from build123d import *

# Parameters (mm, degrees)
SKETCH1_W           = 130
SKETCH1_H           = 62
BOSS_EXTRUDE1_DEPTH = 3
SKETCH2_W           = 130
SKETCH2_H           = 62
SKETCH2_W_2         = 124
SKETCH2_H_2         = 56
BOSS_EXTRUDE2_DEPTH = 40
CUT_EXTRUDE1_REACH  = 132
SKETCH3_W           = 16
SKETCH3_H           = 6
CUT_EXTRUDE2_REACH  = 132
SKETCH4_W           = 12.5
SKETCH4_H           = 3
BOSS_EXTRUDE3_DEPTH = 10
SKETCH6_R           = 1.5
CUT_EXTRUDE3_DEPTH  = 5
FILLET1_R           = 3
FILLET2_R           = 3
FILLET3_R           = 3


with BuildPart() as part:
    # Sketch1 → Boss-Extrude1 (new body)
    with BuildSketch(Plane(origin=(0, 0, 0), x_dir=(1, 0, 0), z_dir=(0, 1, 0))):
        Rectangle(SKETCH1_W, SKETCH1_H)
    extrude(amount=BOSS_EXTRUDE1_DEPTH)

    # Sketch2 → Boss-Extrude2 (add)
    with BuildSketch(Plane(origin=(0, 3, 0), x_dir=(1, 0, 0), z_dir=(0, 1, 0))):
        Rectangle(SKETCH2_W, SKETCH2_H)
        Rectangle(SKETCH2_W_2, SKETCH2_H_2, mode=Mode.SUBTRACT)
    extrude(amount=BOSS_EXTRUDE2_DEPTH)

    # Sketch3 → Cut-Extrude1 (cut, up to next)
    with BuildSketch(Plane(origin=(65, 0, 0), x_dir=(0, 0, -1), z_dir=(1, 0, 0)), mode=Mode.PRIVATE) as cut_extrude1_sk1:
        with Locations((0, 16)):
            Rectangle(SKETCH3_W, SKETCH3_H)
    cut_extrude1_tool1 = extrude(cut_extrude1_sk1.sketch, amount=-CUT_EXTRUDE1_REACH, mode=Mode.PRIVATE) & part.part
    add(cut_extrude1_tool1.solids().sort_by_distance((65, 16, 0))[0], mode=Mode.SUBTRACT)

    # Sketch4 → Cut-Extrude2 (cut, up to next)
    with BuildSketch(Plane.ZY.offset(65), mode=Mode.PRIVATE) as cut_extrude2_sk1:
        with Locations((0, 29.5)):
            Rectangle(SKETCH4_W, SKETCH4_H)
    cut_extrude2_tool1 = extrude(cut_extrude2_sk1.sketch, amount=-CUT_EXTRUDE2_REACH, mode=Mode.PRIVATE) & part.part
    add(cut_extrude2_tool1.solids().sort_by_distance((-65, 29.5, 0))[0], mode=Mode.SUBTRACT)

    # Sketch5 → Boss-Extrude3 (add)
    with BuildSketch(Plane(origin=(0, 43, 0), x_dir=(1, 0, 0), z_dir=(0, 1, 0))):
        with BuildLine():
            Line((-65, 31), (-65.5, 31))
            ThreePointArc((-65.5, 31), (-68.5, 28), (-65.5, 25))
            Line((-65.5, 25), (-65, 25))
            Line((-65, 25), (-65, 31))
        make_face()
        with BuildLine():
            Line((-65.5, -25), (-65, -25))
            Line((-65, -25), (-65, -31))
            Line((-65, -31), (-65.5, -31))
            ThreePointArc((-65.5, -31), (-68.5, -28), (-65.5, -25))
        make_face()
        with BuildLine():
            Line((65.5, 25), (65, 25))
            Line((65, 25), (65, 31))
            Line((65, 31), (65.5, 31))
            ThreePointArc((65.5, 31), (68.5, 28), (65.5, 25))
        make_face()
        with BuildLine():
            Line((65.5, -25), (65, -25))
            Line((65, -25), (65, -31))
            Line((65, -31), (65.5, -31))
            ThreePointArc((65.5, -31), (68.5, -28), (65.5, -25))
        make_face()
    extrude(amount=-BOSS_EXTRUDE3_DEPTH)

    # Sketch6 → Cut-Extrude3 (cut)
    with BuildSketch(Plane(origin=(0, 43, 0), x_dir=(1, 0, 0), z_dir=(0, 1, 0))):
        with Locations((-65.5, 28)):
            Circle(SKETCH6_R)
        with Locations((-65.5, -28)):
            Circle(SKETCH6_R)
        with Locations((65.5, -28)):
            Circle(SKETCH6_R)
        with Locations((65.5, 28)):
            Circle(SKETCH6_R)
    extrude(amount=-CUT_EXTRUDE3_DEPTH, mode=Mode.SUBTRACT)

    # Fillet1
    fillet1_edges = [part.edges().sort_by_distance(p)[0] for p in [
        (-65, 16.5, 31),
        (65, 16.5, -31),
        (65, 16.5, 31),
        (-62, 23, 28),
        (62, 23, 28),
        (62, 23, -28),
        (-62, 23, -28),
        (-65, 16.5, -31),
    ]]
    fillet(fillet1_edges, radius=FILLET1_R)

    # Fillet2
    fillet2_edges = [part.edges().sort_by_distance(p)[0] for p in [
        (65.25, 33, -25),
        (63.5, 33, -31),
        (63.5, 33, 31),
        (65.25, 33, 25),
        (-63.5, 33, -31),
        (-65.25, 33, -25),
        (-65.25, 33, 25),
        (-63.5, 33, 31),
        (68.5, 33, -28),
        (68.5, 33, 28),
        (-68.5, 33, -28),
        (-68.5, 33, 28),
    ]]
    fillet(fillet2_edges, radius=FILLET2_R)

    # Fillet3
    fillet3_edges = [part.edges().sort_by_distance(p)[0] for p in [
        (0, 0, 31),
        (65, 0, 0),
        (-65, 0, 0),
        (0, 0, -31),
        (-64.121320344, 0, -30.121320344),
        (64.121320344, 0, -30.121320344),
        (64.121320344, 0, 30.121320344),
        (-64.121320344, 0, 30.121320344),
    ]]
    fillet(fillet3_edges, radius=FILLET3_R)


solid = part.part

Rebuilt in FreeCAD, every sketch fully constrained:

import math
import FreeCAD as App
import Part
import Sketcher


def edges_at(feature, points):
    """Names of the edges that pass closest to the given points."""
    edges = feature.Shape.Edges
    near = lambda p: min(range(len(edges)), key=lambda i: edges[i].distToShape(Part.Vertex(*p))[0])
    return sorted({f"Edge{near(p) + 1}" for p in points})


def add_polygon(sketch, points):
    """Adds a closed chain of lines whose ends are joined by coincident constraints."""
    first, n = sketch.GeometryCount, len(points)
    for a, b in zip(points, points[1:] + points[:1]):
        sketch.addGeometry(Part.LineSegment(App.Vector(*a, 0), App.Vector(*b, 0)), False)
    for i in range(n):
        sketch.addConstraint(Sketcher.Constraint("Coincident", first + i, 2, first + (i + 1) % n, 1))

doc = App.newDocument("Part")
params = doc.addObject("Spreadsheet::Sheet", "Params")
for row, (alias, value) in enumerate([
    ("sketch1_width", "130 mm"),
    ("sketch1_height", "62 mm"),
    ("pad1_length", "3 mm"),
    ("sketch2_width", "130 mm"),
    ("sketch2_width2", "124 mm"),
    ("sketch2_height", "62 mm"),
    ("sketch2_height2", "56 mm"),
    ("pad2_length", "40 mm"),
    ("sketch3_width", "6 mm"),
    ("sketch3_height", "16 mm"),
    ("sketch4_width", "3 mm"),
    ("sketch4_height", "12.5 mm"),
    ("sketch5_radius", "3 mm"),
    ("sketch5_width", "0.5 mm"),
    ("pad3_length", "10 mm"),
    ("sketch6_diameter", "3 mm"),
    ("pocket3_length", "5 mm"),
    ("fillet_radius", "3 mm"),
    ("fillet2_radius", "3 mm"),
    ("fillet3_radius", "3 mm"),
], start=1):
    params.set(f"A{row}", alias)
    params.set(f"B{row}", "=" + value)
    params.setAlias(f"B{row}", alias)

body = doc.addObject("PartDesign::Body", "Body")

# Sketch on XZ plane
sketch1 = doc.addObject("Sketcher::SketchObject", "Sketch")
body.addObject(sketch1)
sketch1.AttachmentSupport = (doc.XZ_Plane, [""])
sketch1.MapMode = "FlatFace"
add_polygon(sketch1, [(-65, -31), (-65, 31), (65, 31), (65, -31)])  # lines 0-3
sketch1.addConstraint(Sketcher.Constraint("Vertical", 0))
sketch1.addConstraint(Sketcher.Constraint("Horizontal", 1))
sketch1.addConstraint(Sketcher.Constraint("Vertical", 2))
sketch1.addConstraint(Sketcher.Constraint("Horizontal", 3))
sketch1.addConstraint(Sketcher.Constraint("Symmetric", 0, 2, 2, 2, -1, 1))
sketch1.addConstraint(Sketcher.Constraint("DistanceX", 1, 1, 1, 2, 130.0))
sketch1.addConstraint(Sketcher.Constraint("DistanceY", 0, 1, 0, 2, 62.0))
sketch1.setExpression("Constraints[9]", "Params.sketch1_width")
sketch1.setExpression("Constraints[10]", "Params.sketch1_height")
pad1 = doc.addObject("PartDesign::Pad", "Pad")
body.addObject(pad1)
pad1.Profile = sketch1
pad1.setExpression("Length", "Params.pad1_length")
pad1.Reversed = True

# Sketch on XZ plane
sketch2 = doc.addObject("Sketcher::SketchObject", "Sketch001")
body.addObject(sketch2)
sketch2.AttachmentSupport = (doc.XZ_Plane, [""])
sketch2.MapMode = "FlatFace"
sketch2.AttachmentOffset = App.Placement(App.Vector(0, 0, -3), App.Rotation())
add_polygon(sketch2, [(-65, -31), (-65, 31), (65, 31), (65, -31)])  # lines 0-3
add_polygon(sketch2, [(62, 28), (-62, 28), (-62, -28), (62, -28)])  # lines 4-7
sketch2.addConstraint(Sketcher.Constraint("Vertical", 0))
sketch2.addConstraint(Sketcher.Constraint("Horizontal", 1))
sketch2.addConstraint(Sketcher.Constraint("Vertical", 2))
sketch2.addConstraint(Sketcher.Constraint("Horizontal", 3))
sketch2.addConstraint(Sketcher.Constraint("Horizontal", 4))
sketch2.addConstraint(Sketcher.Constraint("Vertical", 5))
sketch2.addConstraint(Sketcher.Constraint("Horizontal", 6))
sketch2.addConstraint(Sketcher.Constraint("Vertical", 7))
sketch2.addConstraint(Sketcher.Constraint("Symmetric", 0, 2, 2, 2, -1, 1))
sketch2.addConstraint(Sketcher.Constraint("Symmetric", 4, 2, 6, 2, -1, 1))
sketch2.addConstraint(Sketcher.Constraint("DistanceX", 1, 1, 1, 2, 130.0))
sketch2.addConstraint(Sketcher.Constraint("DistanceX", 4, 2, 4, 1, 124.0))
sketch2.addConstraint(Sketcher.Constraint("DistanceY", 0, 1, 0, 2, 62.0))
sketch2.addConstraint(Sketcher.Constraint("DistanceY", 5, 2, 5, 1, 56.0))
sketch2.setExpression("Constraints[18]", "Params.sketch2_width")
sketch2.setExpression("Constraints[19]", "Params.sketch2_width2")
sketch2.setExpression("Constraints[20]", "Params.sketch2_height")
sketch2.setExpression("Constraints[21]", "Params.sketch2_height2")
pad2 = doc.addObject("PartDesign::Pad", "Pad001")
body.addObject(pad2)
pad2.Profile = sketch2
pad2.setExpression("Length", "Params.pad2_length")
pad2.Reversed = True

# Sketch on YZ plane
sketch3 = doc.addObject("Sketcher::SketchObject", "Sketch002")
body.addObject(sketch3)
sketch3.AttachmentSupport = (doc.YZ_Plane, [""])
sketch3.MapMode = "FlatFace"
sketch3.AttachmentOffset = App.Placement(App.Vector(0, 0, 65), App.Rotation())
add_polygon(sketch3, [(19, 8), (13, 8), (13, -8), (19, -8)])  # lines 0-3
sketch3.addConstraint(Sketcher.Constraint("Horizontal", 0))
sketch3.addConstraint(Sketcher.Constraint("Vertical", 1))
sketch3.addConstraint(Sketcher.Constraint("Horizontal", 2))
sketch3.addConstraint(Sketcher.Constraint("Vertical", 3))
sketch3.addConstraint(Sketcher.Constraint("DistanceX", 0, 2, 0, 1, 6.0))
sketch3.addConstraint(Sketcher.Constraint("DistanceY", 1, 2, 1, 1, 16.0))
sketch3.addConstraint(Sketcher.Constraint("DistanceX", -1, 1, 0, 2, 13.0))
sketch3.addConstraint(Sketcher.Constraint("DistanceY", -1, 1, 0, 2, 8.0))
sketch3.setExpression("Constraints[8]", "Params.sketch3_width")
sketch3.setExpression("Constraints[9]", "Params.sketch3_height")
pocket1 = doc.addObject("PartDesign::Pocket", "Pocket")
body.addObject(pocket1)
pocket1.Profile = sketch3
pocket1.Type = "UpToFirst"

# Sketch on YZ plane
sketch4 = doc.addObject("Sketcher::SketchObject", "Sketch003")
body.addObject(sketch4)
sketch4.AttachmentSupport = (doc.YZ_Plane, [""])
sketch4.MapMode = "FlatFace"
sketch4.AttachmentOffset = App.Placement(App.Vector(0, 0, -65), App.Rotation())
add_polygon(sketch4, [(31, -6.2), (28, -6.2), (28, 6.2), (31, 6.2)])  # lines 0-3
sketch4.addConstraint(Sketcher.Constraint("Horizontal", 0))
sketch4.addConstraint(Sketcher.Constraint("Vertical", 1))
sketch4.addConstraint(Sketcher.Constraint("Horizontal", 2))
sketch4.addConstraint(Sketcher.Constraint("Vertical", 3))
sketch4.addConstraint(Sketcher.Constraint("DistanceX", 0, 2, 0, 1, 3.0))
sketch4.addConstraint(Sketcher.Constraint("DistanceY", 1, 1, 1, 2, 12.5))
sketch4.addConstraint(Sketcher.Constraint("DistanceX", -1, 1, 0, 2, 28.0))
sketch4.addConstraint(Sketcher.Constraint("DistanceY", 0, 2, -1, 1, 6.25))
sketch4.setExpression("Constraints[8]", "Params.sketch4_width")
sketch4.setExpression("Constraints[9]", "Params.sketch4_height")
pocket2 = doc.addObject("PartDesign::Pocket", "Pocket001")
body.addObject(pocket2)
pocket2.Profile = sketch4
pocket2.Type = "UpToFirst"
pocket2.Reversed = True

# Sketch on XZ plane
sketch5 = doc.addObject("Sketcher::SketchObject", "Sketch004")
body.addObject(sketch5)
sketch5.AttachmentSupport = (doc.XZ_Plane, [""])
sketch5.MapMode = "FlatFace"
sketch5.AttachmentOffset = App.Placement(App.Vector(0, 0, -43), App.Rotation())
sketch5.addGeometry(Part.LineSegment(App.Vector(-65, -31, 0), App.Vector(-65.5, -31, 0)), False)
sketch5.addGeometry(Part.ArcOfCircle(Part.Circle(App.Vector(-65.5, -28, 0), App.Vector(0, 0, 1), 3), math.radians(90), math.radians(270)), False)
sketch5.addGeometry(Part.LineSegment(App.Vector(-65.5, -25, 0), App.Vector(-65, -25, 0)), False)
sketch5.addGeometry(Part.LineSegment(App.Vector(-65, -25, 0), App.Vector(-65, -31, 0)), False)
sketch5.addGeometry(Part.LineSegment(App.Vector(-65, 25, 0), App.Vector(-65.5, 25, 0)), False)
sketch5.addGeometry(Part.ArcOfCircle(Part.Circle(App.Vector(-65.5, 28, 0), App.Vector(0, 0, 1), 3), math.radians(90), math.radians(270)), False)
sketch5.addGeometry(Part.LineSegment(App.Vector(-65.5, 31, 0), App.Vector(-65, 31, 0)), False)
sketch5.addGeometry(Part.LineSegment(App.Vector(-65, 31, 0), App.Vector(-65, 25, 0)), False)
sketch5.addGeometry(Part.LineSegment(App.Vector(65, -25, 0), App.Vector(65.5, -25, 0)), False)
sketch5.addGeometry(Part.ArcOfCircle(Part.Circle(App.Vector(65.5, -28, 0), App.Vector(0, 0, 1), 3), math.radians(-90), math.radians(90)), False)
sketch5.addGeometry(Part.LineSegment(App.Vector(65.5, -31, 0), App.Vector(65, -31, 0)), False)
sketch5.addGeometry(Part.LineSegment(App.Vector(65, -31, 0), App.Vector(65, -25, 0)), False)
sketch5.addGeometry(Part.LineSegment(App.Vector(65.5, 25, 0), App.Vector(65, 25, 0)), False)
sketch5.addGeometry(Part.LineSegment(App.Vector(65, 25, 0), App.Vector(65, 31, 0)), False)
sketch5.addGeometry(Part.LineSegment(App.Vector(65, 31, 0), App.Vector(65.5, 31, 0)), False)
sketch5.addGeometry(Part.ArcOfCircle(Part.Circle(App.Vector(65.5, 28, 0), App.Vector(0, 0, 1), 3), math.radians(-90), math.radians(90)), False)
sketch5.addConstraint(Sketcher.Constraint("Tangent", 0, 2, 1, 2))
sketch5.addConstraint(Sketcher.Constraint("Tangent", 1, 1, 2, 1))
sketch5.addConstraint(Sketcher.Constraint("Coincident", 2, 2, 3, 1))
sketch5.addConstraint(Sketcher.Constraint("Coincident", 3, 2, 0, 1))
sketch5.addConstraint(Sketcher.Constraint("Tangent", 4, 2, 5, 2))
sketch5.addConstraint(Sketcher.Constraint("Tangent", 5, 1, 6, 1))
sketch5.addConstraint(Sketcher.Constraint("Coincident", 6, 2, 7, 1))
sketch5.addConstraint(Sketcher.Constraint("Coincident", 7, 2, 4, 1))
sketch5.addConstraint(Sketcher.Constraint("Tangent", 8, 2, 9, 2))
sketch5.addConstraint(Sketcher.Constraint("Tangent", 9, 1, 10, 1))
sketch5.addConstraint(Sketcher.Constraint("Coincident", 10, 2, 11, 1))
sketch5.addConstraint(Sketcher.Constraint("Coincident", 11, 2, 8, 1))
sketch5.addConstraint(Sketcher.Constraint("Coincident", 12, 2, 13, 1))
sketch5.addConstraint(Sketcher.Constraint("Coincident", 13, 2, 14, 1))
sketch5.addConstraint(Sketcher.Constraint("Tangent", 14, 2, 15, 2))
sketch5.addConstraint(Sketcher.Constraint("Tangent", 15, 1, 12, 1))
sketch5.addConstraint(Sketcher.Constraint("Horizontal", 0))
sketch5.addConstraint(Sketcher.Constraint("Horizontal", 2))
sketch5.addConstraint(Sketcher.Constraint("Vertical", 3))
sketch5.addConstraint(Sketcher.Constraint("Horizontal", 4))
sketch5.addConstraint(Sketcher.Constraint("Horizontal", 6))
sketch5.addConstraint(Sketcher.Constraint("Vertical", 7))
sketch5.addConstraint(Sketcher.Constraint("Horizontal", 8))
sketch5.addConstraint(Sketcher.Constraint("Horizontal", 10))
sketch5.addConstraint(Sketcher.Constraint("Vertical", 11))
sketch5.addConstraint(Sketcher.Constraint("Horizontal", 12))
sketch5.addConstraint(Sketcher.Constraint("Vertical", 13))
sketch5.addConstraint(Sketcher.Constraint("Horizontal", 14))
sketch5.addConstraint(Sketcher.Constraint("Equal", 1, 5))
sketch5.addConstraint(Sketcher.Constraint("Equal", 5, 9))
sketch5.addConstraint(Sketcher.Constraint("Equal", 9, 15))
sketch5.addConstraint(Sketcher.Constraint("Symmetric", 5, 3, 9, 3, -1, 1))
sketch5.addConstraint(Sketcher.Constraint("Symmetric", 1, 3, 15, 3, -1, 1))
sketch5.addConstraint(Sketcher.Constraint("Symmetric", 1, 3, 9, 3, -2))
sketch5.addConstraint(Sketcher.Constraint("Vertical", 3, 2, 6, 2))
sketch5.addConstraint(Sketcher.Constraint("Vertical", 11, 2, 12, 2))
sketch5.addConstraint(Sketcher.Constraint("Equal", 6, 8))
sketch5.addConstraint(Sketcher.Constraint("Radius", 1, 3.0))
sketch5.addConstraint(Sketcher.Constraint("DistanceX", 0, 2, 0, 1, 0.5))
sketch5.addConstraint(Sketcher.Constraint("DistanceY", 1, 3, -1, 1, 28.0))
sketch5.addConstraint(Sketcher.Constraint("DistanceX", 2, 2, -1, 1, 65.0))
sketch5.setExpression("Constraints[37]", "Params.sketch5_radius")
sketch5.setExpression("Constraints[38]", "Params.sketch5_width")
pad3 = doc.addObject("PartDesign::Pad", "Pad002")
body.addObject(pad3)
pad3.Profile = sketch5
pad3.setExpression("Length", "Params.pad3_length")

# Sketch on XZ plane
sketch6 = doc.addObject("Sketcher::SketchObject", "Sketch005")
body.addObject(sketch6)
sketch6.AttachmentSupport = (doc.XZ_Plane, [""])
sketch6.MapMode = "FlatFace"
sketch6.AttachmentOffset = App.Placement(App.Vector(0, 0, -43), App.Rotation())
sketch6.addGeometry(Part.Circle(App.Vector(-65.5, -28, 0), App.Vector(0, 0, 1), 1.5), False)
sketch6.addGeometry(Part.Circle(App.Vector(-65.5, 28, 0), App.Vector(0, 0, 1), 1.5), False)
sketch6.addGeometry(Part.Circle(App.Vector(65.5, 28, 0), App.Vector(0, 0, 1), 1.5), False)
sketch6.addGeometry(Part.Circle(App.Vector(65.5, -28, 0), App.Vector(0, 0, 1), 1.5), False)
sketch6.addConstraint(Sketcher.Constraint("Equal", 0, 1))
sketch6.addConstraint(Sketcher.Constraint("Equal", 1, 2))
sketch6.addConstraint(Sketcher.Constraint("Equal", 2, 3))
sketch6.addConstraint(Sketcher.Constraint("Symmetric", 0, 3, 2, 3, -1, 1))
sketch6.addConstraint(Sketcher.Constraint("Symmetric", 1, 3, 3, 3, -1, 1))
sketch6.addConstraint(Sketcher.Constraint("Symmetric", 1, 3, 2, 3, -2))
sketch6.addConstraint(Sketcher.Constraint("Diameter", 0, 3.0))
sketch6.addConstraint(Sketcher.Constraint("DistanceY", 0, 3, -1, 1, 28.0))
sketch6.addConstraint(Sketcher.Constraint("DistanceX", 1, 3, 2, 3, 131.0))
sketch6.setExpression("Constraints[6]", "Params.sketch6_diameter")
pocket3 = doc.addObject("PartDesign::Pocket", "Pocket002")
body.addObject(pocket3)
pocket3.Profile = sketch6
pocket3.setExpression("Length", "Params.pocket3_length")
pocket3.Reversed = True
doc.recompute()

fillet = doc.addObject("PartDesign::Fillet", "Fillet")
body.addObject(fillet)
fillet.Base = (pocket3, edges_at(pocket3, [
    (-65, 16.5, 31),
    (65, 16.5, -31),
    (65, 16.5, 31),
    (-62, 23, 28),
    (62, 23, 28),
    (62, 23, -28),
    (-62, 23, -28),
    (-65, 16.5, -31),
]))
fillet.setExpression("Radius", "Params.fillet_radius")
doc.recompute()

fillet2 = doc.addObject("PartDesign::Fillet", "Fillet001")
body.addObject(fillet2)
fillet2.Base = (fillet, edges_at(fillet, [
    (65.25, 33, -25),
    (63.75, 33, -31),
    (63.75, 33, 31),
    (65.25, 33, 25),
    (-63.75, 33, -31),
    (-65.25, 33, -25),
    (-65.25, 33, 25),
    (-63.75, 33, 31),
    (68.5, 33, -28),
    (68.5, 33, 28),
    (-68.5, 33, -28),
    (-68.5, 33, 28),
]))
fillet2.setExpression("Radius", "Params.fillet2_radius")
doc.recompute()

fillet3 = doc.addObject("PartDesign::Fillet", "Fillet002")
body.addObject(fillet3)
fillet3.Base = (fillet2, edges_at(fillet2, [
    (0, 0, 31),
    (65, 0, 0),
    (-65, 0, 0),
    (0, 0, -31),
    (-64.121, 0, -30.121),
    (64.121, 0, -30.121),
    (64.121, 0, 30.121),
    (-64.121, 0, 30.121),
]))
fillet3.setExpression("Radius", "Params.fillet3_radius")

doc.recompute()
